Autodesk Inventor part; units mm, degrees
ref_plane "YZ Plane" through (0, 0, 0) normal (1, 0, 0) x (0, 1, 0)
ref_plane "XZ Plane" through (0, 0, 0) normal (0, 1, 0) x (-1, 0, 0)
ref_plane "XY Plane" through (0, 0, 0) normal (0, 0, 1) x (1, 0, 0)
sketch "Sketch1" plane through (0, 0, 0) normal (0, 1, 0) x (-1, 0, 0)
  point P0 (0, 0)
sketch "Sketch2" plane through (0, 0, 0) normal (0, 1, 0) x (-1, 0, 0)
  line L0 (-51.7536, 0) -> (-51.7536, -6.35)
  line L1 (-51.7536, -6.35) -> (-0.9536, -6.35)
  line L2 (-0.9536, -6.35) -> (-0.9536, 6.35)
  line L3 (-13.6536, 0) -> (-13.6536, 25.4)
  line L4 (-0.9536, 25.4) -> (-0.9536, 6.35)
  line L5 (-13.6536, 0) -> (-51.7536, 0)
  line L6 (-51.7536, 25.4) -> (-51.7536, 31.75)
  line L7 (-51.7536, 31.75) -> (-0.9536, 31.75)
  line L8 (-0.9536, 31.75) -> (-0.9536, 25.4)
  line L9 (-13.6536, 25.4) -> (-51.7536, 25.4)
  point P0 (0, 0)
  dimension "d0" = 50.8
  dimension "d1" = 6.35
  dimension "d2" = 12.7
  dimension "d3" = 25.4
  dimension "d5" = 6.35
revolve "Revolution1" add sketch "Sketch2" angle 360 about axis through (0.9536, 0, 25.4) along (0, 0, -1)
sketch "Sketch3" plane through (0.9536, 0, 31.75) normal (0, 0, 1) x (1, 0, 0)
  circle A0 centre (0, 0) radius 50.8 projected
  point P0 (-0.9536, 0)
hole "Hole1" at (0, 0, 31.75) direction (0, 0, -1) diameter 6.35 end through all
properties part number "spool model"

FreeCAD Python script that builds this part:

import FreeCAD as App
import Part
import Sketcher
Q = App.Units.Quantity


def add_polygon(sketch, points):
    """Adds a closed chain of lines whose ends are joined by coincident constraints."""
    first, n = sketch.GeometryCount, len(points)
    for a, b in zip(points, points[1:] + points[:1]):
        sketch.addGeometry(Part.LineSegment(App.Vector(*a, 0), App.Vector(*b, 0)), False)
    for i in range(n):
        sketch.addConstraint(Sketcher.Constraint("Coincident", first + i, 2, first + (i + 1) % n, 1))

doc = App.newDocument("Part")
body = doc.addObject("PartDesign::Body", "Body")

sketch1 = body.newObject("Sketcher::SketchObject", "Sketch")
sketch1.AttachmentSupport = (doc.getObject("XZ_Plane"), [""])
sketch1.MapMode = "FlatFace"
add_polygon(sketch1, [(14, 0), (52, 0), (52, -6), (1, -6), (1, 32), (52, 32), (52, 25), (14, 25)])
sketch1.addGeometry(Part.LineSegment(App.Vector(1, 32, 0), App.Vector(1, -6, 0)), True)
sketch1.addConstraint([
    Sketcher.Constraint("Horizontal", 0),
    Sketcher.Constraint("Vertical", 1),
    Sketcher.Constraint("Horizontal", 2),
    Sketcher.Constraint("Vertical", 3),
    Sketcher.Constraint("Horizontal", 4),
    Sketcher.Constraint("Vertical", 5),
    Sketcher.Constraint("Horizontal", 6),
    Sketcher.Constraint("Vertical", 7),
    Sketcher.Constraint("Vertical", 8),
    Sketcher.Constraint("Coincident", 8, 1, 3, 2),
    Sketcher.Constraint("PointOnObject", 0, 2, -1),
    Sketcher.Constraint("Horizontal", 1, 2, 8, 2),
    Sketcher.Constraint("Vertical", 1, 2, 4, 2),
    Sketcher.Constraint("Equal", 6, 3),
    Sketcher.Constraint("Equal", 1, 5),
    Sketcher.Constraint("DistanceX", 2, 2, 2, 1, Q("2 in")),
    Sketcher.Constraint("DistanceY", 7, 2, 7, 1, Q("1 in")),
    Sketcher.Constraint("DistanceY", 1, 2, 1, 1, Q("0.25 in")),
    Sketcher.Constraint("DistanceX", -1, 1, 0, 2, 51.7536),
])
revolution = body.newObject("PartDesign::Revolution", "Revolution")
revolution.Profile = sketch1
revolution.ReferenceAxis = (sketch1, ["Axis0"])
revolution.Angle = 360

sketch2 = body.newObject("Sketcher::SketchObject", "Sketch001")
sketch2.AttachmentSupport = (doc.getObject("XY_Plane"), [""])
sketch2.MapMode = "FlatFace"
sketch2.AttachmentOffset = App.Placement(App.Vector(0, 0, 1.25 * 25.4), App.Rotation())
sketch2.addGeometry(Part.Circle(App.Vector(0, 0, 0), App.Vector(0, 0, 1), 3.2), False)
sketch2.addConstraint([
    Sketcher.Constraint("Coincident", 0, 3, -1, 1),
    Sketcher.Constraint("Diameter", 0, Q("0.25 in")),
])
doc.recompute()
hole = body.newObject("PartDesign::Hole", "Hole")
hole.Profile = sketch2
hole.ThreadType = "None"
hole.Diameter = Q("0.25 in")
hole.DepthType = "ThroughAll"

doc.recompute()
